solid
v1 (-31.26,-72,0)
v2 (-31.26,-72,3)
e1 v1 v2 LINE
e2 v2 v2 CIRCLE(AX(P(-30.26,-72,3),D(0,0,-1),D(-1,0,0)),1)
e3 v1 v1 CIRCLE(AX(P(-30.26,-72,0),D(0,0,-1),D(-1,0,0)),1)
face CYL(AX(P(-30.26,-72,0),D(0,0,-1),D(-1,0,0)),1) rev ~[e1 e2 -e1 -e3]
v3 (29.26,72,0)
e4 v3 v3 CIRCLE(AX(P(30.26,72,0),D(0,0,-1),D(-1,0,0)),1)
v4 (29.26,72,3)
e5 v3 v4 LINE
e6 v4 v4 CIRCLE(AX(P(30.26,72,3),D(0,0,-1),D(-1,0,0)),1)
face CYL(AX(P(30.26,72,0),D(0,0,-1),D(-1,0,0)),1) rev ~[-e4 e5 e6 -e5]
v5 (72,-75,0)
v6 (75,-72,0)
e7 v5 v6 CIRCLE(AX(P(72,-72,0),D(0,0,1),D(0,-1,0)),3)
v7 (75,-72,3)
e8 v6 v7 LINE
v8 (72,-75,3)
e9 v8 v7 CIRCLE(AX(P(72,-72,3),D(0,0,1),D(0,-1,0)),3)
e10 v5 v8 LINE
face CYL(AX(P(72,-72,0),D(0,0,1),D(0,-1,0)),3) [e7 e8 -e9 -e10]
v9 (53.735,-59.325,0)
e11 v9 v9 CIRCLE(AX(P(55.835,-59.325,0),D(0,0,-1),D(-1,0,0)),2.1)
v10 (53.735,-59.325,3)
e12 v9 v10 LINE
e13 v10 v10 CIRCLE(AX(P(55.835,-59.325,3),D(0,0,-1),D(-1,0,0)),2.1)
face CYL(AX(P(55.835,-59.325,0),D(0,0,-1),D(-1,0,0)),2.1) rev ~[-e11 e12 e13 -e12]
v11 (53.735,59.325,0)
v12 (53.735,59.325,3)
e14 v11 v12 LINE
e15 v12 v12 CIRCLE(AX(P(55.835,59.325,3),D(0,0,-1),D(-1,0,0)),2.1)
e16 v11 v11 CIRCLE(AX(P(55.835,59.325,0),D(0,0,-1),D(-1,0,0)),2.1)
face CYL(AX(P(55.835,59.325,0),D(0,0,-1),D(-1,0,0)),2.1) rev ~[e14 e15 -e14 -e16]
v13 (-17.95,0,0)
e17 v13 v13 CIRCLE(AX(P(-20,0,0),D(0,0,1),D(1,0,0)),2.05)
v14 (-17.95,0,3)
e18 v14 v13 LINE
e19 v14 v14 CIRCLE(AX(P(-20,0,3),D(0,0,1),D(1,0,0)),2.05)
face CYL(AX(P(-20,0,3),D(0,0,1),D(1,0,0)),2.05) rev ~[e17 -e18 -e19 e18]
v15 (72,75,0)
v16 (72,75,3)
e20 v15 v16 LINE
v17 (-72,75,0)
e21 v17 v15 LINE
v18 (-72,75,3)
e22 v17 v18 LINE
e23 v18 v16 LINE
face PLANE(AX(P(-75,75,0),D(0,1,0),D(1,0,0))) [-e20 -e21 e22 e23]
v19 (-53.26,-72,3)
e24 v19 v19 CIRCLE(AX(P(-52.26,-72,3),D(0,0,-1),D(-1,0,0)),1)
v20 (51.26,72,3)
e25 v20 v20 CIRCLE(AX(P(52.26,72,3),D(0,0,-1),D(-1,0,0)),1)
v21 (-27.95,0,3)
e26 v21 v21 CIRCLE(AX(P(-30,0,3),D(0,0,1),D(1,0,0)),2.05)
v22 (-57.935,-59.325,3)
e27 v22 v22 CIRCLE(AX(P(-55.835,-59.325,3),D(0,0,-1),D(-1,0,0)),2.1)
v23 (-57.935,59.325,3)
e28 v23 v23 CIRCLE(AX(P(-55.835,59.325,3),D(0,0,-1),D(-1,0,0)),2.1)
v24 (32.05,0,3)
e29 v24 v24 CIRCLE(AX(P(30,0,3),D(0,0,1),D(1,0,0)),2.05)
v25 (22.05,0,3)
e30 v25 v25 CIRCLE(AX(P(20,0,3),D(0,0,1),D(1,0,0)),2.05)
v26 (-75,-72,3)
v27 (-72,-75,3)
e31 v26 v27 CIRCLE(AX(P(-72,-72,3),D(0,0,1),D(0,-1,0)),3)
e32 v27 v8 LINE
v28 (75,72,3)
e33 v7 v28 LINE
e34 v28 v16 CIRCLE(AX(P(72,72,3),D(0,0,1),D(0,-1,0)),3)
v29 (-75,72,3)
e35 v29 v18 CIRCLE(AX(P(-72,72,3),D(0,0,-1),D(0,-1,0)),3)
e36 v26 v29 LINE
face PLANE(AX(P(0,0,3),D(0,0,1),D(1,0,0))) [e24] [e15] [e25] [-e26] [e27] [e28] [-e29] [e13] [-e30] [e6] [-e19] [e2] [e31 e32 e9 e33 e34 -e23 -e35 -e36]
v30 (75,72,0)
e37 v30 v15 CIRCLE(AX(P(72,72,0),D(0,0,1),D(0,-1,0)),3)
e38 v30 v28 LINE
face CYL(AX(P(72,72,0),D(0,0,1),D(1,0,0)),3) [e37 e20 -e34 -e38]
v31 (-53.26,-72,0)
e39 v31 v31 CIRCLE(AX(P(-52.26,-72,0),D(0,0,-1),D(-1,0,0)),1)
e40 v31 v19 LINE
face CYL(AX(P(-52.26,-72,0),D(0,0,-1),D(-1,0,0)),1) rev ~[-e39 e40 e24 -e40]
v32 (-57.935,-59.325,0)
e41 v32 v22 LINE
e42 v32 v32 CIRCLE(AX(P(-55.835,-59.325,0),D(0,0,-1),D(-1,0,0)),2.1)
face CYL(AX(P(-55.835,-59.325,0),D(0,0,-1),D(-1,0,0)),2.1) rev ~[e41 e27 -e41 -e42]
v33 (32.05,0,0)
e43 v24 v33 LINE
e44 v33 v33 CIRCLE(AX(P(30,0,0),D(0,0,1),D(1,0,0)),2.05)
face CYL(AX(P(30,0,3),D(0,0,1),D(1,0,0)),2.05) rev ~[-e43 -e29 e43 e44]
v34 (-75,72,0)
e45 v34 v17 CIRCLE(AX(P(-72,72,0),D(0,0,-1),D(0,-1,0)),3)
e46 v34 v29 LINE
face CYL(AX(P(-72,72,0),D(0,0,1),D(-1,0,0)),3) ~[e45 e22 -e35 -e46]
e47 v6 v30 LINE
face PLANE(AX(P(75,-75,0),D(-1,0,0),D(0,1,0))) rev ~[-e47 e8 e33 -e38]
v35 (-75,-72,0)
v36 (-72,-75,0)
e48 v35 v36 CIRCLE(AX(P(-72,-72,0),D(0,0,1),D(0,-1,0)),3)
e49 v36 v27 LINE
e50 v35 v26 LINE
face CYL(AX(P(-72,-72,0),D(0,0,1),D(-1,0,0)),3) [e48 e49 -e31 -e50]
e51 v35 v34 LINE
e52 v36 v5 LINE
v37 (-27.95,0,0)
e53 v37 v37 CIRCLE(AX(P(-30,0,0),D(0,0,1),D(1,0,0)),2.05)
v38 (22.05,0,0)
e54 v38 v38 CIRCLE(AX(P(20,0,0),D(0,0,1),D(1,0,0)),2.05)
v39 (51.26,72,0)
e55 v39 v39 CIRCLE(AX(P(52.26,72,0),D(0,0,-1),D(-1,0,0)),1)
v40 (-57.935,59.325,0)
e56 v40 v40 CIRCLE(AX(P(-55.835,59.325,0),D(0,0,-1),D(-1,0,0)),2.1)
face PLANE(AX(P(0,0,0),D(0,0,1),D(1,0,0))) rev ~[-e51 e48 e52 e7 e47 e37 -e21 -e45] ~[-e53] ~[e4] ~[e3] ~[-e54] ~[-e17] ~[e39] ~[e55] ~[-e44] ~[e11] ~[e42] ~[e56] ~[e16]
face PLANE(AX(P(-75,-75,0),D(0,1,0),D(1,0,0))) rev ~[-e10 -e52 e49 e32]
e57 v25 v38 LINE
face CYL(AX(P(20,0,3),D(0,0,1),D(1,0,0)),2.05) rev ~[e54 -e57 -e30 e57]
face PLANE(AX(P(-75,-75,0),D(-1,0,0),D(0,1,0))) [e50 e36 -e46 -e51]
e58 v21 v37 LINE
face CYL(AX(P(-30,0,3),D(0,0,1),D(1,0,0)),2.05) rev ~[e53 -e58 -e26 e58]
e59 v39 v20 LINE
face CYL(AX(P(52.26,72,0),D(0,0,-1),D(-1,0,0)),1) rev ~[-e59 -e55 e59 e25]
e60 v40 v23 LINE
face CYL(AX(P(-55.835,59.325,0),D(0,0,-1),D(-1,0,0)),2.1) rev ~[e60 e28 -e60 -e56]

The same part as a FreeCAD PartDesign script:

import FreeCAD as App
import Part
import Sketcher

V = App.Vector
Q = App.Units.Quantity


def edges_at(feature, points):
    """Names of the edges that pass closest to the given points."""
    edges = feature.Shape.Edges
    near = lambda p: min(range(len(edges)), key=lambda i: edges[i].distToShape(Part.Vertex(*p))[0])
    return sorted({f"Edge{near(p) + 1}" for p in points})


def add_polygon(sketch, points):
    """Adds a closed chain of lines whose ends are joined by coincident constraints."""
    first, n = sketch.GeometryCount, len(points)
    for a, b in zip(points, points[1:] + points[:1]):
        sketch.addGeometry(Part.LineSegment(App.Vector(*a, 0), App.Vector(*b, 0)), False)
    for i in range(n):
        sketch.addConstraint(Sketcher.Constraint("Coincident", first + i, 2, first + (i + 1) % n, 1))

doc = App.newDocument("Part")
body = doc.addObject("PartDesign::Body", "Body")

# Sketch on XY plane
sketch1 = body.newObject("Sketcher::SketchObject", "Sketch")
sketch1.AttachmentSupport = (doc.getObject("XY_Plane"), [""])
sketch1.MapMode = "FlatFace"
add_polygon(sketch1, [(-75, 75), (-75, -75), (75, -75), (75, 75)])  # lines 0-3
sketch1.addConstraint(Sketcher.Constraint("Vertical", 0))
sketch1.addConstraint(Sketcher.Constraint("Horizontal", 1))
sketch1.addConstraint(Sketcher.Constraint("Vertical", 2))
sketch1.addConstraint(Sketcher.Constraint("Horizontal", 3))
sketch1.addConstraint(Sketcher.Constraint("Symmetric", 0, 2, 2, 2, -1, 1))
sketch1.addConstraint(Sketcher.Constraint("Equal", 3, 0))
sketch1.addConstraint(Sketcher.Constraint("DistanceX", 1, 1, 1, 2, Q("150 mm")))
pad1 = body.newObject("PartDesign::Pad", "Pad")
pad1.Profile = sketch1
pad1.Length = 3
doc.recompute()

fillet = body.newObject("PartDesign::Fillet", "Fillet")
fillet.Base = (pad1, edges_at(pad1, [
    (75, -75, 1.5),
    (-75, -75, 1.5),
    (-75, 75, 1.5),
    (75, 75, 1.5),
]))
fillet.Radius = 3

# Sketch on XY plane
sketch2 = body.newObject("Sketcher::SketchObject", "Sketch001")
sketch2.AttachmentSupport = (doc.getObject("XY_Plane"), [""])
sketch2.MapMode = "FlatFace"
sketch2.addGeometry(Part.Circle(V(55.835, 59.325, 0), V(0, 0, 1), 2.1), False)
sketch2.addGeometry(Part.Circle(V(-55.835, 59.325, 0), V(0, 0, 1), 2.1), False)
sketch2.addGeometry(Part.Circle(V(55.835, -59.325, 0), V(0, 0, 1), 2.1), False)
sketch2.addGeometry(Part.Circle(V(-55.835, -59.325, 0), V(0, 0, 1), 2.1), False)
sketch2.addConstraint(Sketcher.Constraint("Equal", 0, 1))
sketch2.addConstraint(Sketcher.Constraint("Equal", 1, 2))
sketch2.addConstraint(Sketcher.Constraint("Equal", 2, 3))
sketch2.addConstraint(Sketcher.Constraint("Symmetric", 1, 3, 2, 3, -1, 1))
sketch2.addConstraint(Sketcher.Constraint("Symmetric", 0, 3, 3, 3, -1, 1))
sketch2.addConstraint(Sketcher.Constraint("Symmetric", 0, 3, 1, 3, -2))
sketch2.addConstraint(Sketcher.Constraint("Diameter", 0, Q("4.2 mm")))
sketch2.addConstraint(Sketcher.Constraint("DistanceX", 1, 3, 0, 3, Q("111.67 mm")))
sketch2.addConstraint(Sketcher.Constraint("DistanceY", 2, 3, 0, 3, Q("118.65 mm")))
pocket1 = body.newObject("PartDesign::Pocket", "Pocket")
pocket1.Profile = sketch2
pocket1.Length = 3
pocket1.Reversed = True

# Sketch on XY plane
sketch3 = body.newObject("Sketcher::SketchObject", "Sketch002")
sketch3.AttachmentSupport = (doc.getObject("XY_Plane"), [""])
sketch3.MapMode = "FlatFace"
sketch3.addGeometry(Part.Circle(V(52.26, 72, 0), V(0, 0, 1), 1), False)
sketch3.addGeometry(Part.Circle(V(30.26, 72, 0), V(0, 0, 1), 1), False)
sketch3.addGeometry(Part.Circle(V(-52.26, -72, 0), V(0, 0, 1), 1), False)
sketch3.addGeometry(Part.Circle(V(-30.26, -72, 0), V(0, 0, 1), 1), False)
sketch3.addConstraint(Sketcher.Constraint("Equal", 0, 1))
sketch3.addConstraint(Sketcher.Constraint("Equal", 1, 2))
sketch3.addConstraint(Sketcher.Constraint("Equal", 2, 3))
sketch3.addConstraint(Sketcher.Constraint("Symmetric", 0, 3, 2, 3, -1, 1))
sketch3.addConstraint(Sketcher.Constraint("Symmetric", 1, 3, 3, 3, -1, 1))
sketch3.addConstraint(Sketcher.Constraint("Horizontal", 0, 3, 1, 3))
sketch3.addConstraint(Sketcher.Constraint("Diameter", 0, Q("2 mm")))
sketch3.addConstraint(Sketcher.Constraint("DistanceY", -1, 1, 0, 3, Q("72 mm")))
sketch3.addConstraint(Sketcher.Constraint("DistanceX", 1, 3, 0, 3, Q("22 mm")))
sketch3.addConstraint(Sketcher.Constraint("DistanceX", -1, 1, 0, 3, Q("52.26 mm")))
pocket2 = body.newObject("PartDesign::Pocket", "Pocket001")
pocket2.Profile = sketch3
pocket2.Length = 3
pocket2.Reversed = True

# Sketch on XY plane
sketch4 = body.newObject("Sketcher::SketchObject", "Sketch003")
sketch4.AttachmentSupport = (doc.getObject("XY_Plane"), [""])
sketch4.MapMode = "FlatFace"
sketch4.AttachmentOffset = App.Placement(V(0, 0, 3), App.Rotation())
sketch4.addGeometry(Part.Circle(V(-30, 0, 0), V(0, 0, 1), 2.05), False)
sketch4.addConstraint(Sketcher.Constraint("PointOnObject", 0, 3, -1))
sketch4.addConstraint(Sketcher.Constraint("Diameter", 0, Q("4.1 mm")))
sketch4.addConstraint(Sketcher.Constraint("DistanceX", 0, 3, -1, 1, Q("30 mm")))
pocket3 = body.newObject("PartDesign::Pocket", "Pocket002")
pocket3.Profile = sketch4
pocket3.Type = "UpToFirst"

# Sketch on XY plane
sketch5 = body.newObject("Sketcher::SketchObject", "Sketch004")
sketch5.AttachmentSupport = (doc.getObject("XY_Plane"), [""])
sketch5.MapMode = "FlatFace"
sketch5.AttachmentOffset = App.Placement(V(0, 0, 3), App.Rotation())
sketch5.addGeometry(Part.Circle(V(-20, 0, 0), V(0, 0, 1), 2.05), False)
sketch5.addConstraint(Sketcher.Constraint("PointOnObject", 0, 3, -1))
sketch5.addConstraint(Sketcher.Constraint("Diameter", 0, Q("4.1 mm")))
sketch5.addConstraint(Sketcher.Constraint("DistanceX", 0, 3, -1, 1, Q("20 mm")))
pocket4 = body.newObject("PartDesign::Pocket", "Pocket003")
pocket4.Profile = sketch5
pocket4.Type = "UpToFirst"

# Sketch on XY plane
sketch6 = body.newObject("Sketcher::SketchObject", "Sketch005")
sketch6.AttachmentSupport = (doc.getObject("XY_Plane"), [""])
sketch6.MapMode = "FlatFace"
sketch6.AttachmentOffset = App.Placement(V(0, 0, 3), App.Rotation())
sketch6.addGeometry(Part.Circle(V(30, 0, 0), V(0, 0, 1), 2.05), False)
sketch6.addConstraint(Sketcher.Constraint("PointOnObject", 0, 3, -1))
sketch6.addConstraint(Sketcher.Constraint("Diameter", 0, Q("4.1 mm")))
sketch6.addConstraint(Sketcher.Constraint("DistanceX", -1, 1, 0, 3, Q("30 mm")))
pocket5 = body.newObject("PartDesign::Pocket", "Pocket004")
pocket5.Profile = sketch6
pocket5.Type = "UpToFirst"

# Sketch on XY plane
sketch7 = body.newObject("Sketcher::SketchObject", "Sketch006")
sketch7.AttachmentSupport = (doc.getObject("XY_Plane"), [""])
sketch7.MapMode = "FlatFace"
sketch7.AttachmentOffset = App.Placement(V(0, 0, 3), App.Rotation())
sketch7.addGeometry(Part.Circle(V(20, 0, 0), V(0, 0, 1), 2.05), False)
sketch7.addConstraint(Sketcher.Constraint("PointOnObject", 0, 3, -1))
sketch7.addConstraint(Sketcher.Constraint("Diameter", 0, Q("4.1 mm")))
sketch7.addConstraint(Sketcher.Constraint("DistanceX", -1, 1, 0, 3, Q("20 mm")))
pocket6 = body.newObject("PartDesign::Pocket", "Pocket005")
pocket6.Profile = sketch7
pocket6.Type = "UpToFirst"

doc.recompute()
